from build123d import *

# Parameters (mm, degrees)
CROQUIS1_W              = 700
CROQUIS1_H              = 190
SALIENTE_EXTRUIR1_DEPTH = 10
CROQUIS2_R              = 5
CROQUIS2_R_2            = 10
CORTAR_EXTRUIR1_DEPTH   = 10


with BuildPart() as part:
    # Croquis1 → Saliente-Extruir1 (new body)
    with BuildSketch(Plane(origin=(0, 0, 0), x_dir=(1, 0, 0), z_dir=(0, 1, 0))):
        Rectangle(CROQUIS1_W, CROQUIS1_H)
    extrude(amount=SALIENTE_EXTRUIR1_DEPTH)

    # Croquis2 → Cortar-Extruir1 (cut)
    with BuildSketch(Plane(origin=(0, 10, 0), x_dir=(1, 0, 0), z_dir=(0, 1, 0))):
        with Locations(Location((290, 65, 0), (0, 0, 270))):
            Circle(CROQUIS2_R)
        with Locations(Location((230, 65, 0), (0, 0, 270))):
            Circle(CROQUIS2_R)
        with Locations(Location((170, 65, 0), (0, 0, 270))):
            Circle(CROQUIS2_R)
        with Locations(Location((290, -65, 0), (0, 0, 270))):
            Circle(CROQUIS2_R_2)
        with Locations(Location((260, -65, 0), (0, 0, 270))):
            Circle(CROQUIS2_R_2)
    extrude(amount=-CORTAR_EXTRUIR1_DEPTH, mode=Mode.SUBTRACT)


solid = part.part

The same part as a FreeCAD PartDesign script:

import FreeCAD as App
import Part
import Sketcher

V = App.Vector
Q = App.Units.Quantity

doc = App.newDocument("Part")
body = doc.addObject("PartDesign::Body", "Body")

# Sketch on XZ plane
sketch1 = doc.addObject("Sketcher::SketchObject", "Sketch")
body.addObject(sketch1)
sketch1.AttachmentSupport = (doc.XZ_Plane, [""])
sketch1.MapMode = "FlatFace"
sketch1.addGeometry([
    Part.LineSegment(V(-350, -95, 0), V(-350, 95, 0)),
    Part.LineSegment(V(-350, 95, 0), V(350, 95, 0)),
    Part.LineSegment(V(350, 95, 0), V(350, -95, 0)),
    Part.LineSegment(V(350, -95, 0), V(-350, -95, 0)),
], False)
sketch1.addConstraint([
    Sketcher.Constraint("Coincident", 0, 2, 1, 1),
    Sketcher.Constraint("Coincident", 1, 2, 2, 1),
    Sketcher.Constraint("Coincident", 2, 2, 3, 1),
    Sketcher.Constraint("Coincident", 3, 2, 0, 1),
    Sketcher.Constraint("Vertical", 0),
    Sketcher.Constraint("Horizontal", 1),
    Sketcher.Constraint("Vertical", 2),
    Sketcher.Constraint("Horizontal", 3),
    Sketcher.Constraint("Symmetric", 0, 2, 2, 2, -1, 1),
    Sketcher.Constraint("DistanceX", 1, 1, 1, 2, Q("700 mm")),
    Sketcher.Constraint("DistanceY", 0, 1, 0, 2, Q("190 mm")),
])
pad1 = doc.addObject("PartDesign::Pad", "Pad")
body.addObject(pad1)
pad1.Profile = sketch1
pad1.Length = 10
pad1.Reversed = True

# Sketch on XZ plane
sketch2 = doc.addObject("Sketcher::SketchObject", "Sketch001")
body.addObject(sketch2)
sketch2.AttachmentSupport = (doc.XZ_Plane, [""])
sketch2.MapMode = "FlatFace"
sketch2.AttachmentOffset = App.Placement(V(0, 0, -10), App.Rotation())
sketch2.addGeometry([
    Part.Circle(V(290, -65, 0), V(0, 0, 1), 5),  # 0
    Part.Circle(V(230, -65, 0), V(0, 0, 1), 5),  # 1
    Part.Circle(V(170, -65, 0), V(0, 0, 1), 5),  # 2
    Part.Circle(V(290, 65, 0), V(0, 0, 1), 10),  # 3
    Part.Circle(V(260, 65, 0), V(0, 0, 1), 10),  # 4
], False)
sketch2.addConstraint([
    Sketcher.Constraint("Equal", 0, 1),
    Sketcher.Constraint("Equal", 1, 2),
    Sketcher.Constraint("Equal", 3, 4),
    Sketcher.Constraint("Symmetric", 0, 3, 3, 3, -1),
    Sketcher.Constraint("Horizontal", 0, 3, 1, 3),
    Sketcher.Constraint("Horizontal", 1, 3, 2, 3),
    Sketcher.Constraint("Horizontal", 3, 3, 4, 3),
    Sketcher.Constraint("Diameter", 0, Q("10 mm")),
    Sketcher.Constraint("Diameter", 3, Q("20 mm")),
    Sketcher.Constraint("DistanceX", -1, 1, 0, 3, Q("290 mm")),
    Sketcher.Constraint("DistanceY", 0, 3, -1, 1, Q("65 mm")),
    Sketcher.Constraint("DistanceX", -1, 1, 1, 3, Q("230 mm")),
    Sketcher.Constraint("DistanceX", -1, 1, 2, 3, Q("170 mm")),
    Sketcher.Constraint("DistanceX", -1, 1, 4, 3, Q("260 mm")),
])
pocket1 = doc.addObject("PartDesign::Pocket", "Pocket")
body.addObject(pocket1)
pocket1.Profile = sketch2
pocket1.Length = 10
pocket1.Reversed = True

doc.recompute()
